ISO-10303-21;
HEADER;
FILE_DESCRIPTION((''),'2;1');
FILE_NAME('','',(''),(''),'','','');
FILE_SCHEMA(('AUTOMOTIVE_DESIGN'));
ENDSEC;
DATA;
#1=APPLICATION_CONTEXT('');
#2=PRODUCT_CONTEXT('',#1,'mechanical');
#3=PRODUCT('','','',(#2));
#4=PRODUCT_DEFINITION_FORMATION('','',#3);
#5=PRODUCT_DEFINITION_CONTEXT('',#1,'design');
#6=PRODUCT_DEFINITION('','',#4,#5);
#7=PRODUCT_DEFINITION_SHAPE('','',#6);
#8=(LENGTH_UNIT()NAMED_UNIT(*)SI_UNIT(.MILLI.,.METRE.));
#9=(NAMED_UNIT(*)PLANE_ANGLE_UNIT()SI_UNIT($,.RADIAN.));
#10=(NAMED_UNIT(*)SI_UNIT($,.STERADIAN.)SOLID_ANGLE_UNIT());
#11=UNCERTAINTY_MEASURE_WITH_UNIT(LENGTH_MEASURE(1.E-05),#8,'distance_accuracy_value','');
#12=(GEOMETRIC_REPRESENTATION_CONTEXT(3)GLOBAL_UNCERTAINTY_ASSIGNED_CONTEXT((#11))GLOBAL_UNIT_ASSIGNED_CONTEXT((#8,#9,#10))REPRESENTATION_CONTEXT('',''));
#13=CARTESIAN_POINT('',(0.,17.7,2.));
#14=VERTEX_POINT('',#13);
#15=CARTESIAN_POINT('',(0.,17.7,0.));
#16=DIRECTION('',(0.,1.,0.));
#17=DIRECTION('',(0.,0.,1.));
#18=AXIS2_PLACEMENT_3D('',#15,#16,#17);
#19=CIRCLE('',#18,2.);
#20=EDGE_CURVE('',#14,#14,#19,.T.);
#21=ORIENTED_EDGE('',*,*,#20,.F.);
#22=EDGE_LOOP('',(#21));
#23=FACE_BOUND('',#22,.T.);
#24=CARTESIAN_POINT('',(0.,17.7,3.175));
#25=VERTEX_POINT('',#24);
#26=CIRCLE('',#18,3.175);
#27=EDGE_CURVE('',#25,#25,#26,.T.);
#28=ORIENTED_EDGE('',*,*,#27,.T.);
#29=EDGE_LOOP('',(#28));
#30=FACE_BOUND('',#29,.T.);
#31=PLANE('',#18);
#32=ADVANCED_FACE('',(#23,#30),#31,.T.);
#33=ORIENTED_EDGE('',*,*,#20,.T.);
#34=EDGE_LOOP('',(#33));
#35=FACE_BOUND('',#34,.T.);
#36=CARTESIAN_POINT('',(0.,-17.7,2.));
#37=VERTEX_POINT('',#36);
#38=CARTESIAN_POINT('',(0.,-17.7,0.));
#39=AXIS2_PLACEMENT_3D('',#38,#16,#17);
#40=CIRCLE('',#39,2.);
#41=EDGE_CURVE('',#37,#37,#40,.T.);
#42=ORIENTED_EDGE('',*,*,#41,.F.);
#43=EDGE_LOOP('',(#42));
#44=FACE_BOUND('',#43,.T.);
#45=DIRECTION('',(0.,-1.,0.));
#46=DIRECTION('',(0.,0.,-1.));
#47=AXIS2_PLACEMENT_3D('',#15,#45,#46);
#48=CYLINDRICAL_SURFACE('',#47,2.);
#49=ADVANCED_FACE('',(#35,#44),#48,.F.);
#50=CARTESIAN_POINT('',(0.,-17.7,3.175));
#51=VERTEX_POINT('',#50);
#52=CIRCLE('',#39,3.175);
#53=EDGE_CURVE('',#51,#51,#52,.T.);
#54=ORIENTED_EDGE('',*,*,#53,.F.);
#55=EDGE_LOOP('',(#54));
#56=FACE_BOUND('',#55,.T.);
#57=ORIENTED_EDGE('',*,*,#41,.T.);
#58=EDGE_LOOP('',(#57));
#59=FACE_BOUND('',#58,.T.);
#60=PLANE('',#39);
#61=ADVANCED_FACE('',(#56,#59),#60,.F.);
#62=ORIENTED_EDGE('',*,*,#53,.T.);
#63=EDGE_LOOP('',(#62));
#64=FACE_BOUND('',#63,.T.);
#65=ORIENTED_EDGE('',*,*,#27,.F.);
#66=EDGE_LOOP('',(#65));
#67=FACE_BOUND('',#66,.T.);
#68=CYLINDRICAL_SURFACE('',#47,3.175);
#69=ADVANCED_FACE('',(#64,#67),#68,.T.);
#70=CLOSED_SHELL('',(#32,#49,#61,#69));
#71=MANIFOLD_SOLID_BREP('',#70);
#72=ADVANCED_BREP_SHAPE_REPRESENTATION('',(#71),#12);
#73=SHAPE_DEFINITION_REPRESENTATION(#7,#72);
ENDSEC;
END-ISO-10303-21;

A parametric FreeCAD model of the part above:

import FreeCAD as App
import Part
import Sketcher

doc = App.newDocument("Part")
body = doc.addObject("PartDesign::Body", "Body")

# Sketch on XZ plane
sketch1 = body.newObject("Sketcher::SketchObject", "Sketch")
sketch1.AttachmentSupport = (doc.getObject("XZ_Plane"), [""])
sketch1.MapMode = "FlatFace"
sketch1.addGeometry([
    Part.Circle(App.Vector(0, 0, 0), App.Vector(0, 0, 1), 3.2),
    Part.Circle(App.Vector(0, 0, 0), App.Vector(0, 0, 1), 2),
], False)
sketch1.addConstraint([
    Sketcher.Constraint("Coincident", 0, 3, -1, 1),
    Sketcher.Constraint("Coincident", 1, 3, -1, 1),
    Sketcher.Constraint("Diameter", 1, 4.0),
    Sketcher.Constraint("Diameter", 0, 6.35),
])
pad1 = body.newObject("PartDesign::Pad", "Pad")
pad1.Profile = sketch1
pad1.Length = 35.4
pad1.Midplane = True

doc.recompute()
